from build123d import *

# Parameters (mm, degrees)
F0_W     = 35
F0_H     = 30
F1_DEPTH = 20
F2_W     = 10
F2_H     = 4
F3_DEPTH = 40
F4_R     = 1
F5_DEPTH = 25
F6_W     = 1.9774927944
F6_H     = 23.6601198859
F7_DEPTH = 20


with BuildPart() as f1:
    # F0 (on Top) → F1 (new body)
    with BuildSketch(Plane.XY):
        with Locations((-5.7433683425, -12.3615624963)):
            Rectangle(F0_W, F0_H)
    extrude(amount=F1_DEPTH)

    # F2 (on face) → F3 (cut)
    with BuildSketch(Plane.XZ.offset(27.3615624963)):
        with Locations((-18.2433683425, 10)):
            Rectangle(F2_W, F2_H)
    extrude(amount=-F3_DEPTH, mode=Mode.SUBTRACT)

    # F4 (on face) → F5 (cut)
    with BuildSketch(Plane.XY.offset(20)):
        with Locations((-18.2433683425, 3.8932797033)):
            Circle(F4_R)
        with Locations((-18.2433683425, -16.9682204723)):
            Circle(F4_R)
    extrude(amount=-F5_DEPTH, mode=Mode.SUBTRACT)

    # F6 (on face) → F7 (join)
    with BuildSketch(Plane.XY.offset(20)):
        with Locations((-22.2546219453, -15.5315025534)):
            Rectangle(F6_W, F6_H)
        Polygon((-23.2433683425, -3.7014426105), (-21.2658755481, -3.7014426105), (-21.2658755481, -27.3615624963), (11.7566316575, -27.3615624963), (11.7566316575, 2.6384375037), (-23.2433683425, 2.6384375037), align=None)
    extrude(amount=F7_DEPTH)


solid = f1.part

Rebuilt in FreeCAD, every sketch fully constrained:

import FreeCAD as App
import Part
import Sketcher

V = App.Vector
Q = App.Units.Quantity


def add_polygon(sketch, points):
    """Adds a closed chain of lines whose ends are joined by coincident constraints."""
    first, n = sketch.GeometryCount, len(points)
    for a, b in zip(points, points[1:] + points[:1]):
        sketch.addGeometry(Part.LineSegment(App.Vector(*a, 0), App.Vector(*b, 0)), False)
    for i in range(n):
        sketch.addConstraint(Sketcher.Constraint("Coincident", first + i, 2, first + (i + 1) % n, 1))

doc = App.newDocument("Part")
params = doc.addObject("Spreadsheet::Sheet", "Params")
for row, (alias, value) in enumerate([
    ("sketch1_width", "35 mm"),
    ("sketch1_height", "30 mm"),
    ("pad1_length", "20 mm"),
    ("sketch2_width", "10 mm"),
    ("sketch2_height", "4 mm"),
    ("pocket1_length", "40 mm"),
    ("sketch3_diameter", "2 mm"),
    ("pocket2_length", "25 mm"),
    ("sketch4_width", "35 mm"),
    ("sketch4_height", "30 mm"),
    ("pad2_length", "20 mm"),
], start=1):
    params.set(f"A{row}", alias)
    params.set(f"B{row}", "=" + value)
    params.setAlias(f"B{row}", alias)

body = doc.addObject("PartDesign::Body", "Body")

# Sketch on XY plane
sketch1 = doc.addObject("Sketcher::SketchObject", "Sketch")
body.addObject(sketch1)
sketch1.AttachmentSupport = (doc.XY_Plane, [""])
sketch1.MapMode = "FlatFace"
add_polygon(sketch1, [(-23, 3), (-23, -27), (12, -27), (12, 3)])  # lines 0-3
sketch1.addConstraint([
    Sketcher.Constraint("Vertical", 0),
    Sketcher.Constraint("Horizontal", 1),
    Sketcher.Constraint("Vertical", 2),
    Sketcher.Constraint("Horizontal", 3),
    Sketcher.Constraint("DistanceX", 1, 1, 1, 2, Q("35 mm")),
    Sketcher.Constraint("DistanceY", 0, 2, 0, 1, Q("30 mm")),
    Sketcher.Constraint("DistanceX", 0, 2, -1, 1, Q("23.243368 mm")),
    Sketcher.Constraint("DistanceY", 0, 2, -1, 1, Q("27.361562 mm")),
])
sketch1.setExpression("Constraints[8]", "Params.sketch1_width")
sketch1.setExpression("Constraints[9]", "Params.sketch1_height")
pad1 = doc.addObject("PartDesign::Pad", "Pad")
body.addObject(pad1)
pad1.Profile = sketch1
pad1.setExpression("Length", "Params.pad1_length")

# Sketch on XZ plane
sketch2 = doc.addObject("Sketcher::SketchObject", "Sketch001")
body.addObject(sketch2)
sketch2.AttachmentSupport = (doc.XZ_Plane, [""])
sketch2.MapMode = "FlatFace"
sketch2.AttachmentOffset = App.Placement(V(0, 0, 27.361562), App.Rotation())
add_polygon(sketch2, [(-23.2, 12), (-23.2, 8), (-13.2, 8), (-13.2, 12)])  # lines 0-3
sketch2.addConstraint([
    Sketcher.Constraint("Vertical", 0),
    Sketcher.Constraint("Horizontal", 1),
    Sketcher.Constraint("Vertical", 2),
    Sketcher.Constraint("Horizontal", 3),
    Sketcher.Constraint("DistanceX", 1, 1, 1, 2, Q("10 mm")),
    Sketcher.Constraint("DistanceY", 0, 2, 0, 1, Q("4 mm")),
    Sketcher.Constraint("DistanceY", -1, 1, 0, 2, Q("8 mm")),
    Sketcher.Constraint("DistanceX", 0, 2, -1, 1, Q("23.243368 mm")),
])
sketch2.setExpression("Constraints[8]", "Params.sketch2_width")
sketch2.setExpression("Constraints[9]", "Params.sketch2_height")
pocket1 = doc.addObject("PartDesign::Pocket", "Pocket")
body.addObject(pocket1)
pocket1.Profile = sketch2
pocket1.setExpression("Length", "Params.pocket1_length")

# Sketch on XY plane
sketch3 = doc.addObject("Sketcher::SketchObject", "Sketch002")
body.addObject(sketch3)
sketch3.AttachmentSupport = (doc.XY_Plane, [""])
sketch3.MapMode = "FlatFace"
sketch3.AttachmentOffset = App.Placement(V(0, 0, 20), App.Rotation())
sketch3.addGeometry([
    Part.Circle(V(-18.2, 3.9, 0), V(0, 0, 1), 1),
    Part.Circle(V(-18.2, -17, 0), V(0, 0, 1), 1),
], False)
sketch3.addConstraint([
    Sketcher.Constraint("Equal", 0, 1),
    Sketcher.Constraint("Vertical", 0, 3, 1, 3),
    Sketcher.Constraint("Diameter", 0, Q("2 mm")),
    Sketcher.Constraint("DistanceY", 1, 3, 0, 3, Q("20.8615 mm")),
    Sketcher.Constraint("DistanceX", 0, 3, -1, 1, Q("18.243368 mm")),
    Sketcher.Constraint("DistanceY", -1, 1, 0, 3, Q("3.89328 mm")),
])
sketch3.setExpression("Constraints[2]", "Params.sketch3_diameter")
pocket2 = doc.addObject("PartDesign::Pocket", "Pocket001")
body.addObject(pocket2)
pocket2.Profile = sketch3
pocket2.setExpression("Length", "Params.pocket2_length")

# Sketch on XY plane
sketch4 = doc.addObject("Sketcher::SketchObject", "Sketch003")
body.addObject(sketch4)
sketch4.AttachmentSupport = (doc.XY_Plane, [""])
sketch4.MapMode = "FlatFace"
sketch4.AttachmentOffset = App.Placement(V(0, 0, 20), App.Rotation())
add_polygon(sketch4, [(-23.2, -27.4), (-21.3, -27.4), (11.8, -27.4), (11.8, 2.6), (-23.2, 2.6)])  # lines 0-4
sketch4.addConstraint([
    Sketcher.Constraint("Horizontal", 0),
    Sketcher.Constraint("Horizontal", 1),
    Sketcher.Constraint("Vertical", 2),
    Sketcher.Constraint("Horizontal", 3),
    Sketcher.Constraint("Vertical", 4),
    Sketcher.Constraint("DistanceX", 3, 2, 3, 1, Q("35 mm")),
    Sketcher.Constraint("DistanceY", 2, 1, 2, 2, Q("30 mm")),
    Sketcher.Constraint("DistanceX", 0, 1, 0, 2, Q("1.977493 mm")),
    Sketcher.Constraint("DistanceX", -1, 1, 1, 2, Q("11.756632 mm")),
    Sketcher.Constraint("DistanceY", 0, 2, -1, 1, Q("27.361562 mm")),
])
sketch4.setExpression("Constraints[10]", "Params.sketch4_width")
sketch4.setExpression("Constraints[11]", "Params.sketch4_height")
pad2 = doc.addObject("PartDesign::Pad", "Pad001")
body.addObject(pad2)
pad2.Profile = sketch4
pad2.setExpression("Length", "Params.pad2_length")

doc.recompute()
